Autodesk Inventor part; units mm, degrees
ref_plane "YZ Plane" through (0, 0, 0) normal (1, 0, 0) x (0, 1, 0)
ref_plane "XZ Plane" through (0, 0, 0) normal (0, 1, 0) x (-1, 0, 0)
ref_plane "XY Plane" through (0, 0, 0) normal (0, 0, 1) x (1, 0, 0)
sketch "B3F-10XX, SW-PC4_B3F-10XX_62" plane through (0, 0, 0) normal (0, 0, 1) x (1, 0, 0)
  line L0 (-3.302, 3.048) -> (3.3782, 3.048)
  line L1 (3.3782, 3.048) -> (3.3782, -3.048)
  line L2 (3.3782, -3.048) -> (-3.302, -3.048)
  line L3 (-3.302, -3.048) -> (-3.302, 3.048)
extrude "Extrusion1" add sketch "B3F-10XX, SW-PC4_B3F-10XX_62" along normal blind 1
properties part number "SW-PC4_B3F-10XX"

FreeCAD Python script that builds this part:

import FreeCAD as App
import Part
import Sketcher

V = App.Vector
Q = App.Units.Quantity


def add_polygon(sketch, points):
    """Adds a closed chain of lines whose ends are joined by coincident constraints."""
    first, n = sketch.GeometryCount, len(points)
    for a, b in zip(points, points[1:] + points[:1]):
        sketch.addGeometry(Part.LineSegment(App.Vector(*a, 0), App.Vector(*b, 0)), False)
    for i in range(n):
        sketch.addConstraint(Sketcher.Constraint("Coincident", first + i, 2, first + (i + 1) % n, 1))

doc = App.newDocument("Part")
body = doc.addObject("PartDesign::Body", "Body")

# Sketch on XY plane
sketch1 = body.newObject("Sketcher::SketchObject", "Sketch")
sketch1.AttachmentSupport = (doc.getObject("XY_Plane"), [""])
sketch1.MapMode = "FlatFace"
add_polygon(sketch1, [(3, 3), (-3, 3), (-3, -3), (3, -3)])  # lines 0-3
sketch1.addConstraint([
    Sketcher.Constraint("Horizontal", 0),
    Sketcher.Constraint("Vertical", 1),
    Sketcher.Constraint("Horizontal", 2),
    Sketcher.Constraint("Vertical", 3),
    Sketcher.Constraint("DistanceY", 1, 2, 1, 1, Q("0.24 in")),
    Sketcher.Constraint("DistanceX", 0, 2, 0, 1, Q("0.263 in")),
    Sketcher.Constraint("DistanceX", 0, 2, -1, 1, Q("0.13 in")),
    Sketcher.Constraint("DistanceY", -1, 1, 0, 2, Q("0.12 in")),
])
pad1 = body.newObject("PartDesign::Pad", "Pad")
pad1.Profile = sketch1
pad1.Length = 1

doc.recompute()
